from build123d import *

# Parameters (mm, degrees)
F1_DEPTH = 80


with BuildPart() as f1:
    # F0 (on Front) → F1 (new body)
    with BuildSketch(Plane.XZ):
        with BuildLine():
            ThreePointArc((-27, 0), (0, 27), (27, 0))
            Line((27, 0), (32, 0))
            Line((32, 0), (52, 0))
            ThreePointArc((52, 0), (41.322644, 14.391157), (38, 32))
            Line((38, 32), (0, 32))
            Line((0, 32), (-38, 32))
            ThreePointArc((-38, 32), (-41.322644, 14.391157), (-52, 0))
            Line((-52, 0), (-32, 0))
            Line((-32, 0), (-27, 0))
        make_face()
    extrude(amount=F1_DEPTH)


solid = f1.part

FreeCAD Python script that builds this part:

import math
import FreeCAD as App
import Part
import Sketcher
from FreeCAD import Vector

doc = App.newDocument("Part")
params = doc.addObject("Spreadsheet::Sheet", "Params")
for row, (alias, value) in enumerate([
    ("sketch1_radius", "27 mm"),
    ("sketch1_width", "25 mm"),
    ("sketch1_width2", "76 mm"),
    ("pad1_length", "80 mm"),
], start=1):
    params.set(f"A{row}", alias)
    params.set(f"B{row}", "=" + value)
    params.setAlias(f"B{row}", alias)

body = doc.addObject("PartDesign::Body", "Body")

sketch1 = body.newObject("Sketcher::SketchObject", "Sketch")
sketch1.AttachmentSupport = (doc.getObject("XZ_Plane"), [""])
sketch1.MapMode = "FlatFace"
sketch1.addGeometry(Part.ArcOfCircle(Part.Circle(Vector(0, 0, 0), Vector(0, 0, 1), 27), math.radians(0), math.radians(180)), False)
sketch1.addGeometry(Part.LineSegment(Vector(27, 0, 0), Vector(52, 0, 0)), False)
sketch1.addGeometry(Part.ArcOfCircle(Part.Circle(Vector(78, 30, 0), Vector(0, 0, 1), 40), math.radians(178), math.radians(230)), False)
sketch1.addGeometry(Part.LineSegment(Vector(38, 32, 0), Vector(-38, 32, 0)), False)
sketch1.addGeometry(Part.ArcOfCircle(Part.Circle(Vector(-78, 30, 0), Vector(0, 0, 1), 40), math.radians(-50), math.radians(2)), False)
sketch1.addGeometry(Part.LineSegment(Vector(-52, 0, 0), Vector(-27, 0, 0)), False)
sketch1.addConstraint(Sketcher.Constraint("Coincident", 0, 1, 1, 1))
sketch1.addConstraint(Sketcher.Constraint("Coincident", 1, 2, 2, 2))
sketch1.addConstraint(Sketcher.Constraint("Coincident", 2, 1, 3, 1))
sketch1.addConstraint(Sketcher.Constraint("Coincident", 3, 2, 4, 2))
sketch1.addConstraint(Sketcher.Constraint("Coincident", 4, 1, 5, 1))
sketch1.addConstraint(Sketcher.Constraint("Coincident", 5, 2, 0, 2))
sketch1.addConstraint(Sketcher.Constraint("Horizontal", 1))
sketch1.addConstraint(Sketcher.Constraint("Horizontal", 3))
sketch1.addConstraint(Sketcher.Constraint("Horizontal", 5))
sketch1.addConstraint(Sketcher.Constraint("Coincident", 0, 3, -1, 1))
sketch1.addConstraint(Sketcher.Constraint("Equal", 2, 4))
sketch1.addConstraint(Sketcher.Constraint("Symmetric", 1, 2, 4, 1, -1, 1))
sketch1.addConstraint(Sketcher.Constraint("Symmetric", 2, 3, 4, 3, -2))
sketch1.addConstraint(Sketcher.Constraint("Radius", 0, 27.0))
sketch1.addConstraint(Sketcher.Constraint("DistanceX", 1, 1, 1, 2, 25.0))
sketch1.addConstraint(Sketcher.Constraint("DistanceX", 3, 2, 3, 1, 76.0))
sketch1.addConstraint(Sketcher.Constraint("DistanceY", -1, 1, 2, 1, 32.0))
sketch1.addConstraint(Sketcher.Constraint("Radius", 2, 40.000003))
sketch1.setExpression("Constraints[13]", "Params.sketch1_radius")
sketch1.setExpression("Constraints[14]", "Params.sketch1_width")
sketch1.setExpression("Constraints[15]", "Params.sketch1_width2")
pad1 = body.newObject("PartDesign::Pad", "Pad")
pad1.Profile = sketch1
pad1.setExpression("Length", "Params.pad1_length")

doc.recompute()
